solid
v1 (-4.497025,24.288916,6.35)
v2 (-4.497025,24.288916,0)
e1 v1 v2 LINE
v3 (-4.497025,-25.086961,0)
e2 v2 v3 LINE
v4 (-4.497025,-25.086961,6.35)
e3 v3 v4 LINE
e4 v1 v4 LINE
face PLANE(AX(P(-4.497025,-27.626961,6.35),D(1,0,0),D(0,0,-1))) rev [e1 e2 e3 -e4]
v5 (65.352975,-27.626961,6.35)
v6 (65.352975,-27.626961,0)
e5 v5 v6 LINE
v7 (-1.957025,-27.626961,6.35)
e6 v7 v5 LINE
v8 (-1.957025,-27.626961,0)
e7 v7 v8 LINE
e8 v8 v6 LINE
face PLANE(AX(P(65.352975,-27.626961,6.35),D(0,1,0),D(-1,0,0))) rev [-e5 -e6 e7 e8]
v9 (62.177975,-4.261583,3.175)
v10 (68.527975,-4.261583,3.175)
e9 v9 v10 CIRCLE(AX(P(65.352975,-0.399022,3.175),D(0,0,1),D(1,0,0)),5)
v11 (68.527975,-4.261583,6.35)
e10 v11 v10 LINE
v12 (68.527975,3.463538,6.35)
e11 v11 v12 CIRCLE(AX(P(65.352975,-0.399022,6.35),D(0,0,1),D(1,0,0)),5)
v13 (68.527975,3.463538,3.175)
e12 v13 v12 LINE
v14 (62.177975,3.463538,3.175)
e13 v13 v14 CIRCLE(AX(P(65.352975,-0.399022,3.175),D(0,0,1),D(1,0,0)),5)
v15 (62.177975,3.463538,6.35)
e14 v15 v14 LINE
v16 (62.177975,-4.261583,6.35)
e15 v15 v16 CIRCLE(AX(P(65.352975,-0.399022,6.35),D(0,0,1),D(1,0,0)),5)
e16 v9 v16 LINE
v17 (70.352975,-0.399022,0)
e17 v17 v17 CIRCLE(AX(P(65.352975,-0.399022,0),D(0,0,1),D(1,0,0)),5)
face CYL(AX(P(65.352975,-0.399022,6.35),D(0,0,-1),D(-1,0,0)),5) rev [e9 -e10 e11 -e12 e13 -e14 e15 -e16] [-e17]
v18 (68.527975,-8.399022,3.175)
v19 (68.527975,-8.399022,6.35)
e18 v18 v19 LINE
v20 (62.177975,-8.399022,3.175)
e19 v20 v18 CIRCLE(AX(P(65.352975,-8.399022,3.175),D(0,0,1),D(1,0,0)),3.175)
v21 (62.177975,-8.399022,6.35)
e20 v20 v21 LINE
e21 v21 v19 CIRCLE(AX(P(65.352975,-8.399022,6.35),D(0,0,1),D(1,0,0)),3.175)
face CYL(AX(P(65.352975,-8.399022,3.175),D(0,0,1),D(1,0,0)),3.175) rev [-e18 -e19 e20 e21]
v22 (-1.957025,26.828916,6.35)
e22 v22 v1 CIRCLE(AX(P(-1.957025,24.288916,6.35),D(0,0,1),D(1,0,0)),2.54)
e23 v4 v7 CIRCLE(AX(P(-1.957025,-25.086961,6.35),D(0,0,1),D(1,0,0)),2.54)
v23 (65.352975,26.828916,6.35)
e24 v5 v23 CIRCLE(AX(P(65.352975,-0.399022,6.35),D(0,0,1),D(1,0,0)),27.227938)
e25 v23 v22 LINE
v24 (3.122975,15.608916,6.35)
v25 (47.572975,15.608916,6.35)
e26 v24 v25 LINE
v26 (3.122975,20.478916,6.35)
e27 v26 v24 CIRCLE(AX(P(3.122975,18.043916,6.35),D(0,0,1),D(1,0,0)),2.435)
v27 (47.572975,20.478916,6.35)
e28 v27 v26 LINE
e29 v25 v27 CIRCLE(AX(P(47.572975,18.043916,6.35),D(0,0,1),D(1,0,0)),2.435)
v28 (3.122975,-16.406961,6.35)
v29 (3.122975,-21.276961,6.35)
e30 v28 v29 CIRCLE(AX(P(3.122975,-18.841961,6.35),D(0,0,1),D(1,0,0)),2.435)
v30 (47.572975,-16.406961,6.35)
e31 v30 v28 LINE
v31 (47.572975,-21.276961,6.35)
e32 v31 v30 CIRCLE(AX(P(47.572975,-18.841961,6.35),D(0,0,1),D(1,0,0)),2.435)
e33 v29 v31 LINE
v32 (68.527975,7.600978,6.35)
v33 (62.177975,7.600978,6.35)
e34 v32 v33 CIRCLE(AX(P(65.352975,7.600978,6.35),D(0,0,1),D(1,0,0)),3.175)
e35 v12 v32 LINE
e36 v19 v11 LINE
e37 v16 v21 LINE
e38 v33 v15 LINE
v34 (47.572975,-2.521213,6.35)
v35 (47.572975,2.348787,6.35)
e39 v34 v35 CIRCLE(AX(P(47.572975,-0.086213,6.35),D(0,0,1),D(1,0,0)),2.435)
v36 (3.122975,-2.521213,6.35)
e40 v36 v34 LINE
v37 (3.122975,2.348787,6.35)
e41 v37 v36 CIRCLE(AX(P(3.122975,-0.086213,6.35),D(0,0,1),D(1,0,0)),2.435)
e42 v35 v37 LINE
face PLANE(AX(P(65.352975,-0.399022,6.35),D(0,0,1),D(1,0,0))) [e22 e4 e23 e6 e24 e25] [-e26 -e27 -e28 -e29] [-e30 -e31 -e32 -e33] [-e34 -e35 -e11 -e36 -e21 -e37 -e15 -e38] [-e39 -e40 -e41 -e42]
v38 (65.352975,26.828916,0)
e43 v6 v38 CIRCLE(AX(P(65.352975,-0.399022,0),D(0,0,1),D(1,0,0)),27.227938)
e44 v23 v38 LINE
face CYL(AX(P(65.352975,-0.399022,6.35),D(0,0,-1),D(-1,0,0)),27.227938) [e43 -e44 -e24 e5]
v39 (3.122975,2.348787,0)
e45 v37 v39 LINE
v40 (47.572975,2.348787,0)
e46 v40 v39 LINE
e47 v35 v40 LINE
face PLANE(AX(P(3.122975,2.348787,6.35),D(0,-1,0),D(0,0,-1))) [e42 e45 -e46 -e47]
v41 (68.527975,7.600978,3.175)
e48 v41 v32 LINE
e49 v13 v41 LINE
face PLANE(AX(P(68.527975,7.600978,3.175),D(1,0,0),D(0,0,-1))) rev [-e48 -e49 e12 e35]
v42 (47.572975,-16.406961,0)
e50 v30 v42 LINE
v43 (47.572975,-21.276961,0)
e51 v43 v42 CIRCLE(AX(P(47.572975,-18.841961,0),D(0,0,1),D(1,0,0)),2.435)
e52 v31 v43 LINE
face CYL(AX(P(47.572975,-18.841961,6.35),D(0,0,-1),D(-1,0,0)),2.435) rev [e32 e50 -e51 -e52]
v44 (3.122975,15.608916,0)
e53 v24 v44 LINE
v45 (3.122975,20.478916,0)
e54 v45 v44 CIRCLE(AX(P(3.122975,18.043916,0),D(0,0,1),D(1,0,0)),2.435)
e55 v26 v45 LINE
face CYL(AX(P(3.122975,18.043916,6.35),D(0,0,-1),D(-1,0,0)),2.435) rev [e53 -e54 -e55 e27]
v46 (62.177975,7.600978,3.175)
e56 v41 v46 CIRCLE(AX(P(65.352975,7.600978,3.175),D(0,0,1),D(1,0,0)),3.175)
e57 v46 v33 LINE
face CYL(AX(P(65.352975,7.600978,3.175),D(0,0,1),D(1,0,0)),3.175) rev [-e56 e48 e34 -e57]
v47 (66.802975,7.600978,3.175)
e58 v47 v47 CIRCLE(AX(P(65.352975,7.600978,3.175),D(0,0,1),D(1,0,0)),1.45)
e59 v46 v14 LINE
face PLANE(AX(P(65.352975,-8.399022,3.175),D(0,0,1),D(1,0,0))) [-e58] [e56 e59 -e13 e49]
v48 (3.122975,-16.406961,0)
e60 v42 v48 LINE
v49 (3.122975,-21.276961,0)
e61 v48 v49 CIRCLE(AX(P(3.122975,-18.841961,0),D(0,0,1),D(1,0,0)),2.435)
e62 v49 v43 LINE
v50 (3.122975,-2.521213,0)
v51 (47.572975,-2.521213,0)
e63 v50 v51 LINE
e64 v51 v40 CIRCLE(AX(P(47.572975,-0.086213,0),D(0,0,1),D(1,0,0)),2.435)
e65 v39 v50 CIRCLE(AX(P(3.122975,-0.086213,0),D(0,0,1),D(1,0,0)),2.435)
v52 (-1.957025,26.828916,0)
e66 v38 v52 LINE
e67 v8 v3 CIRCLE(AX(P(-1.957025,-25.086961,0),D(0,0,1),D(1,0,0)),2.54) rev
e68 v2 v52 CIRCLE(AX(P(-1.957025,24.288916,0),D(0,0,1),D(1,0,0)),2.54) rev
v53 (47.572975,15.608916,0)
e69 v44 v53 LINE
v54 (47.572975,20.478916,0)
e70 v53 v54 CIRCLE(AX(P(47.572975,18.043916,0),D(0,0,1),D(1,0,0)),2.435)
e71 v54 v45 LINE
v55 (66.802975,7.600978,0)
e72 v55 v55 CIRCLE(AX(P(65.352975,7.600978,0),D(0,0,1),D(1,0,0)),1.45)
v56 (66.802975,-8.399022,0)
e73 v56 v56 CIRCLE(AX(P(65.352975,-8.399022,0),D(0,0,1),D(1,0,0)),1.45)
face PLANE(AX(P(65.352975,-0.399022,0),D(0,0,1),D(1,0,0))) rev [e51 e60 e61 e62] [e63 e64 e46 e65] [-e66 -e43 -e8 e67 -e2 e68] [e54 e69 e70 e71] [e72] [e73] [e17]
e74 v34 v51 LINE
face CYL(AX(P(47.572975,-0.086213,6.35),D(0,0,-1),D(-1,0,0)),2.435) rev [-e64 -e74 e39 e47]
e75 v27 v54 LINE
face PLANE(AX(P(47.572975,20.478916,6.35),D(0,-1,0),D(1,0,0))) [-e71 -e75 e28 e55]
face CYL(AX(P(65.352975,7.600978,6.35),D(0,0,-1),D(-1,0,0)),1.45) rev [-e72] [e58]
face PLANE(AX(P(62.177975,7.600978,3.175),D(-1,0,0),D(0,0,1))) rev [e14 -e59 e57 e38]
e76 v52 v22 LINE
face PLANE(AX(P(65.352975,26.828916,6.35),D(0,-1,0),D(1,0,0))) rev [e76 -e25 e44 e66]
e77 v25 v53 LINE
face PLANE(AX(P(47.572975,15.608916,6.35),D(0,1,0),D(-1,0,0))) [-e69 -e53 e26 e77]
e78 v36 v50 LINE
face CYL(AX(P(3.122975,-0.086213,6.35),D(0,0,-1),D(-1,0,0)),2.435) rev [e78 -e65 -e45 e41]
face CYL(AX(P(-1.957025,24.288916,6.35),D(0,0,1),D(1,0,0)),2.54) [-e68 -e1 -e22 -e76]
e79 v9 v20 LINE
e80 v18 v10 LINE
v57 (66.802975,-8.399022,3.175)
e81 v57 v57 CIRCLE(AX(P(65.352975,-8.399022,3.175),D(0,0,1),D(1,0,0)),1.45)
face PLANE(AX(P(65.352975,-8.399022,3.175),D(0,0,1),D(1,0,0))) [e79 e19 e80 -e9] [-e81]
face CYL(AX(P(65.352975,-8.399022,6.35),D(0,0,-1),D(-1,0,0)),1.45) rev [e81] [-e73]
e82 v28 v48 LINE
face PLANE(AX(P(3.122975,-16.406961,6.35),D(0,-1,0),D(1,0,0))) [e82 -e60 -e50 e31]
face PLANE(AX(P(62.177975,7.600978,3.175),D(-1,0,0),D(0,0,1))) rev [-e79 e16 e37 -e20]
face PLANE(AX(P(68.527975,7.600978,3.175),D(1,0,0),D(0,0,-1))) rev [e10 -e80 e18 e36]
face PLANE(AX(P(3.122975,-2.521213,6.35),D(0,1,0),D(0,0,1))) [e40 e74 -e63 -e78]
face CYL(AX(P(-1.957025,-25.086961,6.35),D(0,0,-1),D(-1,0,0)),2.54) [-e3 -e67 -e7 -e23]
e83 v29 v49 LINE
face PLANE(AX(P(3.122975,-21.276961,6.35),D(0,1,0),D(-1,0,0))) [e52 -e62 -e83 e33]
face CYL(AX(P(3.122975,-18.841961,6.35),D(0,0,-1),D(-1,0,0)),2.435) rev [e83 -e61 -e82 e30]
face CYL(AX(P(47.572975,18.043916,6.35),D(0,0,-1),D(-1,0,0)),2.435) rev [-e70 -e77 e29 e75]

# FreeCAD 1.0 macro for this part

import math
import FreeCAD as App
import Part
import Sketcher

V = App.Vector
Q = App.Units.Quantity


def edges_at(feature, points):
    """Names of the edges that pass closest to the given points."""
    edges = feature.Shape.Edges
    near = lambda p: min(range(len(edges)), key=lambda i: edges[i].distToShape(Part.Vertex(*p))[0])
    return sorted({f"Edge{near(p) + 1}" for p in points})

doc = App.newDocument("Part")
body = doc.addObject("PartDesign::Body", "Body")

sketch1 = doc.addObject("Sketcher::SketchObject", "Sketch")
body.addObject(sketch1)
sketch1.AttachmentSupport = (doc.XY_Plane, [""])
sketch1.MapMode = "FlatFace"
sketch1.addGeometry([
    Part.LineSegment(V(-4.5, 26.8, 0), V(-4.5, -27.6, 0)),
    Part.LineSegment(V(-4.5, -27.6, 0), V(65.4, -27.6, 0)),
    Part.ArcOfCircle(Part.Circle(V(65.4, -0.4, 0), V(0, 0, 1), 27.2), math.radians(-90), math.radians(90)),
    Part.LineSegment(V(65.4, 26.8, 0), V(-4.5, 26.8, 0)),
    Part.Circle(V(65.4, -8.4, 0), V(0, 0, 1), 1.4),
    Part.Circle(V(65.4, -0.4, 0), V(0, 0, 1), 5),
    Part.LineSegment(V(3.1, -16.4, 0), V(47.6, -16.4, 0)),
    Part.ArcOfCircle(Part.Circle(V(47.6, -18.8, 0), V(0, 0, 1), 2.4), math.radians(-90), math.radians(90)),
    Part.LineSegment(V(47.6, -21.3, 0), V(3.1, -21.3, 0)),
    Part.ArcOfCircle(Part.Circle(V(3.1, -18.8, 0), V(0, 0, 1), 2.4), math.radians(90), math.radians(270)),
    Part.Circle(V(65.4, 7.6, 0), V(0, 0, 1), 1.4),
    Part.LineSegment(V(3.1, 2.3, 0), V(47.6, 2.3, 0)),
    Part.ArcOfCircle(Part.Circle(V(47.6, -0.1, 0), V(0, 0, 1), 2.4), math.radians(-90), math.radians(90)),
    Part.LineSegment(V(47.6, -2.5, 0), V(3.1, -2.5, 0)),
    Part.ArcOfCircle(Part.Circle(V(3.1, -0.1, 0), V(0, 0, 1), 2.4), math.radians(90), math.radians(270)),
    Part.LineSegment(V(47.6, 15.6, 0), V(3.1, 15.6, 0)),
    Part.ArcOfCircle(Part.Circle(V(3.1, 18, 0), V(0, 0, 1), 2.4), math.radians(90), math.radians(270)),
    Part.LineSegment(V(3.1, 20.5, 0), V(47.6, 20.5, 0)),
    Part.ArcOfCircle(Part.Circle(V(47.6, 18, 0), V(0, 0, 1), 2.4), math.radians(-90), math.radians(90)),
], False)
sketch1.addConstraint([
    Sketcher.Constraint("Coincident", 0, 2, 1, 1),
    Sketcher.Constraint("Tangent", 1, 2, 2, 1),
    Sketcher.Constraint("Tangent", 2, 2, 3, 1),
    Sketcher.Constraint("Coincident", 3, 2, 0, 1),
    Sketcher.Constraint("Tangent", 6, 2, 7, 2),
    Sketcher.Constraint("Tangent", 7, 1, 8, 1),
    Sketcher.Constraint("Tangent", 8, 2, 9, 2),
    Sketcher.Constraint("Tangent", 9, 1, 6, 1),
    Sketcher.Constraint("Tangent", 11, 2, 12, 2),
    Sketcher.Constraint("Tangent", 12, 1, 13, 1),
    Sketcher.Constraint("Tangent", 13, 2, 14, 2),
    Sketcher.Constraint("Tangent", 14, 1, 11, 1),
    Sketcher.Constraint("Tangent", 15, 2, 16, 2),
    Sketcher.Constraint("Tangent", 16, 1, 17, 1),
    Sketcher.Constraint("Tangent", 17, 2, 18, 2),
    Sketcher.Constraint("Tangent", 18, 1, 15, 1),
    Sketcher.Constraint("Vertical", 0),
    Sketcher.Constraint("Horizontal", 1),
    Sketcher.Constraint("Horizontal", 3),
    Sketcher.Constraint("Horizontal", 6),
    Sketcher.Constraint("Horizontal", 8),
    Sketcher.Constraint("Horizontal", 11),
    Sketcher.Constraint("Horizontal", 13),
    Sketcher.Constraint("Horizontal", 15),
    Sketcher.Constraint("Horizontal", 17),
    Sketcher.Constraint("Coincident", 5, 3, 2, 3),
    Sketcher.Constraint("Equal", 4, 10),
    Sketcher.Constraint("Equal", 9, 12),
    Sketcher.Constraint("Equal", 14, 16),
    Sketcher.Constraint("Vertical", 2, 3, 4, 3),
    Sketcher.Constraint("Vertical", 5, 3, 10, 3),
    Sketcher.Constraint("Vertical", 7, 3, 12, 3),
    Sketcher.Constraint("Vertical", 9, 3, 14, 3),
    Sketcher.Constraint("Vertical", 14, 3, 16, 3),
    Sketcher.Constraint("Vertical", 12, 3, 18, 3),
    Sketcher.Constraint("DistanceX", 1, 1, 1, 2, Q("2.75 in")),
    Sketcher.Constraint("DistanceX", 6, 1, 6, 2, Q("1.75 in")),
    Sketcher.Constraint("DistanceX", 7, 3, 4, 3, Q("0.7 in")),
    Sketcher.Constraint("Diameter", 4, Q("2.9 mm")),
    Sketcher.Constraint("Diameter", 5, Q("10 mm")),
    Sketcher.Constraint("Radius", 7, Q("2.435 mm")),
    Sketcher.Constraint("DistanceY", 1, 2, 7, 1, Q("0.25 in")),
    Sketcher.Constraint("DistanceY", 16, 1, 3, 2, Q("0.25 in")),
    Sketcher.Constraint("Radius", 2, Q("27.227938 mm")),
    Sketcher.Constraint("DistanceY", 4, 3, 2, 3, Q("8 mm")),
    Sketcher.Constraint("DistanceY", 2, 3, 10, 3, Q("8 mm")),
    Sketcher.Constraint("DistanceY", 7, 3, -1, 1, Q("18.841961 mm")),
    Sketcher.Constraint("DistanceY", 2, 3, 12, 3, Q("0.312809 mm")),
    Sketcher.Constraint("DistanceX", -1, 1, 2, 3, Q("65.352975 mm")),
])
pad1 = doc.addObject("PartDesign::Pad", "Pad")
body.addObject(pad1)
pad1.Profile = sketch1
pad1.Length = Q("0.25 in")
doc.recompute()

fillet = doc.addObject("PartDesign::Fillet", "Fillet")
body.addObject(fillet)
fillet.Base = (pad1, edges_at(pad1, [(-4.497, -27.627, 3.175)]))
fillet.Radius = Q("0.1 in")
doc.recompute()

fillet2 = doc.addObject("PartDesign::Fillet", "Fillet001")
body.addObject(fillet2)
fillet2.Base = (fillet, edges_at(fillet, [(-4.497, 26.829, 3.175)]))
fillet2.Radius = Q("0.1 in")

sketch2 = doc.addObject("Sketcher::SketchObject", "Sketch001")
body.addObject(sketch2)
sketch2.AttachmentSupport = (doc.XY_Plane, [""])
sketch2.MapMode = "FlatFace"
sketch2.AttachmentOffset = App.Placement(V(0, 0, 0.25 * 25.4), App.Rotation())
sketch2.addGeometry([
    Part.LineSegment(V(68.5, -8.4, 0), V(68.5, 7.6, 0)),
    Part.ArcOfCircle(Part.Circle(V(65.4, 7.6, 0), V(0, 0, 1), 3.2), math.radians(0), math.radians(180)),
    Part.LineSegment(V(62.2, 7.6, 0), V(62.2, -8.4, 0)),
    Part.ArcOfCircle(Part.Circle(V(65.4, -8.4, 0), V(0, 0, 1), 3.2), math.radians(180), math.radians(360)),
], False)
sketch2.addConstraint([
    Sketcher.Constraint("Tangent", 0, 2, 1, 1),
    Sketcher.Constraint("Tangent", 1, 2, 2, 1),
    Sketcher.Constraint("Tangent", 2, 2, 3, 1),
    Sketcher.Constraint("Tangent", 3, 2, 0, 1),
    Sketcher.Constraint("Vertical", 0),
    Sketcher.Constraint("Vertical", 2),
    Sketcher.Constraint("Radius", 1, Q("0.125 in")),
    Sketcher.Constraint("DistanceY", 0, 1, 0, 2, Q("16 mm")),
    Sketcher.Constraint("DistanceX", -1, 1, 1, 3, Q("65.352975 mm")),
    Sketcher.Constraint("DistanceY", -1, 1, 1, 3, Q("7.600978 mm")),
])
pocket1 = doc.addObject("PartDesign::Pocket", "Pocket")
body.addObject(pocket1)
pocket1.Profile = sketch2
pocket1.Length = Q("0.125 in")

doc.recompute()
